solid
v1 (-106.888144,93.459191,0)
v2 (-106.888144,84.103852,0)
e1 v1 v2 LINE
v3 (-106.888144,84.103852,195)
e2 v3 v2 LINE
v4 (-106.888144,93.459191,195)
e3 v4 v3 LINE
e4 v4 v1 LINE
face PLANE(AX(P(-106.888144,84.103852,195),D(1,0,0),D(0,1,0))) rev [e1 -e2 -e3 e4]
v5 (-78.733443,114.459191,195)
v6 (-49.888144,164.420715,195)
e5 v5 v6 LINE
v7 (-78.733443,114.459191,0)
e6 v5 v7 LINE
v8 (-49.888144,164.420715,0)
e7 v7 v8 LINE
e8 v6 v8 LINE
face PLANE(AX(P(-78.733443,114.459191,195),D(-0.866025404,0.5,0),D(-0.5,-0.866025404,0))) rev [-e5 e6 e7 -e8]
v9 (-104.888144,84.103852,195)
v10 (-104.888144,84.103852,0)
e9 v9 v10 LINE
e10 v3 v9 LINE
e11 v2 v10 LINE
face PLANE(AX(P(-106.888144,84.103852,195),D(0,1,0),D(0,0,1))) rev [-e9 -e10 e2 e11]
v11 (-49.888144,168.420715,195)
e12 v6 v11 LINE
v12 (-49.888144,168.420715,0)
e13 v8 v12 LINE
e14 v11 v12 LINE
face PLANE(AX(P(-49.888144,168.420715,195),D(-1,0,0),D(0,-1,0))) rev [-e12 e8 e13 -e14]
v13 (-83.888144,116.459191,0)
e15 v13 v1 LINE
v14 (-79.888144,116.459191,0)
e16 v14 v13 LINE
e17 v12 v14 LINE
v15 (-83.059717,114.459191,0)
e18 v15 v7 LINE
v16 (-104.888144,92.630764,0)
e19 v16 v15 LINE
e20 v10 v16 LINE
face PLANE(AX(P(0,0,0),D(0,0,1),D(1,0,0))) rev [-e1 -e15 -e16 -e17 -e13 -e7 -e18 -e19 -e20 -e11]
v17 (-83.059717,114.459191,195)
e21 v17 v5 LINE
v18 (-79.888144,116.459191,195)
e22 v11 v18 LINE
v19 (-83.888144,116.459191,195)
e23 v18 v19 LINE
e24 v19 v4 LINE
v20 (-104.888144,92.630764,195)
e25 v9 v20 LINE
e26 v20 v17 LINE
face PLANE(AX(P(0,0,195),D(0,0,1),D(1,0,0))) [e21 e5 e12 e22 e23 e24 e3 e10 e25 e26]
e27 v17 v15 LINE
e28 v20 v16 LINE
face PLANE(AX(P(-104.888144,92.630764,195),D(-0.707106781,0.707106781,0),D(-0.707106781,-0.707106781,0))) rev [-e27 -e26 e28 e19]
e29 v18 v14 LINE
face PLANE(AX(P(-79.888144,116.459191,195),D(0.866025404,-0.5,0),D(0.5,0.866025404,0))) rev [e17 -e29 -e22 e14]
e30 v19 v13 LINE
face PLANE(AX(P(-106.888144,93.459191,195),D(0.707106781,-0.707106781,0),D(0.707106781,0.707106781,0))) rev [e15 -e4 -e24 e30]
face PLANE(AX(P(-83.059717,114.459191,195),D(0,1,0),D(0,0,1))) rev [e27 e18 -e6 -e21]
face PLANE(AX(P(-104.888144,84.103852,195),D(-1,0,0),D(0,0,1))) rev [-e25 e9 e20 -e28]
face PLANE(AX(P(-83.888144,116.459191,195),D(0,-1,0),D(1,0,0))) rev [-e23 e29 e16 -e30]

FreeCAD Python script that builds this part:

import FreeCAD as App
import Part
import Sketcher

V = App.Vector
Q = App.Units.Quantity


def add_polygon(sketch, points):
    """Adds a closed chain of lines whose ends are joined by coincident constraints."""
    first, n = sketch.GeometryCount, len(points)
    for a, b in zip(points, points[1:] + points[:1]):
        sketch.addGeometry(Part.LineSegment(App.Vector(*a, 0), App.Vector(*b, 0)), False)
    for i in range(n):
        sketch.addConstraint(Sketcher.Constraint("Coincident", first + i, 2, first + (i + 1) % n, 1))

doc = App.newDocument("Part")
body = doc.addObject("PartDesign::Body", "Body")

sketch1 = body.newObject("Sketcher::SketchObject", "Sketch")
sketch1.AttachmentSupport = (doc.getObject("XY_Plane"), [""])
sketch1.MapMode = "FlatFace"
add_polygon(sketch1, [(-49.888144, 164.420715), (-49.888144, 168.420715), (-79.888144, 116.459191), (-83.888144, 116.459191), (-106.888144, 93.459191), (-106.888144, 84.103852), (-104.888144, 84.103852), (-104.888144, 92.630764), (-83.059717, 114.459191), (-78.733443, 114.459191)])
sketch1.addConstraint(Sketcher.Constraint("Vertical", 0))
sketch1.addConstraint(Sketcher.Constraint("Horizontal", 2))
sketch1.addConstraint(Sketcher.Constraint("Vertical", 4))
sketch1.addConstraint(Sketcher.Constraint("Horizontal", 5))
sketch1.addConstraint(Sketcher.Constraint("Vertical", 6))
sketch1.addConstraint(Sketcher.Constraint("Horizontal", 8))
sketch1.addConstraint(Sketcher.Constraint("Parallel", 3, 7))
sketch1.addConstraint(Sketcher.Constraint("Parallel", 1, 9))
sketch1.addConstraint(Sketcher.Constraint("Equal", 2, 0))
sketch1.addConstraint(Sketcher.Constraint("DistanceX", 2, 2, 2, 1, 4.0))
sketch1.addConstraint(Sketcher.Constraint("DistanceX", 5, 1, 5, 2, 2.0))
sketch1.addConstraint(Sketcher.Constraint("Angle", 1, Q("-120 deg")))
sketch1.addConstraint(Sketcher.Constraint("Angle", 3, Q("-135 deg")))
sketch1.addConstraint(Sketcher.Constraint("Distance", 1, 60.0))
sketch1.addConstraint(Sketcher.Constraint("DistanceX", 3, 2, 2, 2, 23.0))
sketch1.addConstraint(Sketcher.Constraint("DistanceY", 7, 2, 2, 2, 2.0))
sketch1.addConstraint(Sketcher.Constraint("DistanceY", 4, 2, 4, 1, 9.355339))
sketch1.addConstraint(Sketcher.Constraint("DistanceY", 6, 1, 6, 2, 8.526912))
sketch1.addConstraint(Sketcher.Constraint("DistanceY", -1, 1, 1, 2, 116.459191))
sketch1.addConstraint(Sketcher.Constraint("DistanceX", 0, 2, -1, 1, 49.888144))
pad1 = body.newObject("PartDesign::Pad", "Pad")
pad1.Profile = sketch1
pad1.Length = 195

doc.recompute()
